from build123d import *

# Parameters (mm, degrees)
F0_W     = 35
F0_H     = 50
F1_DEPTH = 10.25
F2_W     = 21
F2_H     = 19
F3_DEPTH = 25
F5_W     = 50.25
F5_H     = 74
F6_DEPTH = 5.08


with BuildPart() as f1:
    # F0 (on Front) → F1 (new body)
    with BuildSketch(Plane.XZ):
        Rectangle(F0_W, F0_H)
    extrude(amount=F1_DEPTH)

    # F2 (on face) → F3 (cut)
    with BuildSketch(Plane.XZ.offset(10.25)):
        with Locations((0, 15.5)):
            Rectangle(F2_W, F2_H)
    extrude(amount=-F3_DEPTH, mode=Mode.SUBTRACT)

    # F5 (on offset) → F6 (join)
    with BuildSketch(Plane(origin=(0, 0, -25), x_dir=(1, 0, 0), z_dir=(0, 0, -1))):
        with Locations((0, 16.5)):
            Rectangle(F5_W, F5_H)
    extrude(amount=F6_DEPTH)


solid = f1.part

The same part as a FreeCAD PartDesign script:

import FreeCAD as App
import Part
import Sketcher

V = App.Vector
Q = App.Units.Quantity

doc = App.newDocument("Part")
params = doc.addObject("Spreadsheet::Sheet", "Params")
for row, (alias, value) in enumerate([
    ("sketch1_width", "35 mm"),
    ("sketch1_height", "50 mm"),
    ("pad1_length", "10.25 mm"),
    ("sketch2_width", "21 mm"),
    ("sketch2_height", "19 mm"),
    ("pocket1_length", "25 mm"),
    ("sketch3_height", "74 mm"),
    ("sketch3_width", "50.25 mm"),
    ("pad2_length", "5.08 mm"),
], start=1):
    params.set(f"A{row}", alias)
    params.set(f"B{row}", "=" + value)
    params.setAlias(f"B{row}", alias)

body = doc.addObject("PartDesign::Body", "Body")

# Sketch on XZ plane
sketch1 = body.newObject("Sketcher::SketchObject", "Sketch")
sketch1.AttachmentSupport = (doc.getObject("XZ_Plane"), [""])
sketch1.MapMode = "FlatFace"
sketch1.addGeometry(Part.LineSegment(V(-18, 25, 0), V(-18, -25, 0)), False)
sketch1.addGeometry(Part.LineSegment(V(-18, -25, 0), V(18, -25, 0)), False)
sketch1.addGeometry(Part.LineSegment(V(18, -25, 0), V(18, 25, 0)), False)
sketch1.addGeometry(Part.LineSegment(V(18, 25, 0), V(-18, 25, 0)), False)
sketch1.addConstraint(Sketcher.Constraint("Coincident", 0, 2, 1, 1))
sketch1.addConstraint(Sketcher.Constraint("Coincident", 1, 2, 2, 1))
sketch1.addConstraint(Sketcher.Constraint("Coincident", 2, 2, 3, 1))
sketch1.addConstraint(Sketcher.Constraint("Coincident", 3, 2, 0, 1))
sketch1.addConstraint(Sketcher.Constraint("Vertical", 0))
sketch1.addConstraint(Sketcher.Constraint("Horizontal", 1))
sketch1.addConstraint(Sketcher.Constraint("Vertical", 2))
sketch1.addConstraint(Sketcher.Constraint("Horizontal", 3))
sketch1.addConstraint(Sketcher.Constraint("Symmetric", 0, 2, 2, 2, -1, 1))
sketch1.addConstraint(Sketcher.Constraint("DistanceX", 1, 1, 1, 2, Q("35 mm")))
sketch1.addConstraint(Sketcher.Constraint("DistanceY", 0, 2, 0, 1, Q("50 mm")))
sketch1.setExpression("Constraints[9]", "Params.sketch1_width")
sketch1.setExpression("Constraints[10]", "Params.sketch1_height")
pad1 = body.newObject("PartDesign::Pad", "Pad")
pad1.Profile = sketch1
pad1.setExpression("Length", "Params.pad1_length")

# Sketch on XZ plane
sketch2 = body.newObject("Sketcher::SketchObject", "Sketch001")
sketch2.AttachmentSupport = (doc.getObject("XZ_Plane"), [""])
sketch2.MapMode = "FlatFace"
sketch2.AttachmentOffset = App.Placement(V(0, 0, 10.25), App.Rotation())
sketch2.addGeometry(Part.LineSegment(V(-10, 25, 0), V(-10, 6, 0)), False)
sketch2.addGeometry(Part.LineSegment(V(-10, 6, 0), V(10, 6, 0)), False)
sketch2.addGeometry(Part.LineSegment(V(10, 6, 0), V(10, 25, 0)), False)
sketch2.addGeometry(Part.LineSegment(V(10, 25, 0), V(-10, 25, 0)), False)
sketch2.addConstraint(Sketcher.Constraint("Coincident", 0, 2, 1, 1))
sketch2.addConstraint(Sketcher.Constraint("Coincident", 1, 2, 2, 1))
sketch2.addConstraint(Sketcher.Constraint("Coincident", 2, 2, 3, 1))
sketch2.addConstraint(Sketcher.Constraint("Coincident", 3, 2, 0, 1))
sketch2.addConstraint(Sketcher.Constraint("Vertical", 0))
sketch2.addConstraint(Sketcher.Constraint("Horizontal", 1))
sketch2.addConstraint(Sketcher.Constraint("Vertical", 2))
sketch2.addConstraint(Sketcher.Constraint("Horizontal", 3))
sketch2.addConstraint(Sketcher.Constraint("DistanceX", 1, 1, 1, 2, Q("21 mm")))
sketch2.addConstraint(Sketcher.Constraint("DistanceY", 0, 2, 0, 1, Q("19 mm")))
sketch2.addConstraint(Sketcher.Constraint("DistanceY", -1, 1, 0, 2, Q("6 mm")))
sketch2.addConstraint(Sketcher.Constraint("DistanceX", 0, 2, -1, 1, Q("10.5 mm")))
sketch2.setExpression("Constraints[8]", "Params.sketch2_width")
sketch2.setExpression("Constraints[9]", "Params.sketch2_height")
pocket1 = body.newObject("PartDesign::Pocket", "Pocket")
pocket1.Profile = sketch2
pocket1.setExpression("Length", "Params.pocket1_length")

# Sketch on XY plane
sketch3 = body.newObject("Sketcher::SketchObject", "Sketch002")
sketch3.AttachmentSupport = (doc.getObject("XY_Plane"), [""])
sketch3.MapMode = "FlatFace"
sketch3.AttachmentOffset = App.Placement(V(0, 0, -25), App.Rotation())
sketch3.addGeometry(Part.LineSegment(V(-25, -54, 0), V(-25, 20, 0)), False)
sketch3.addGeometry(Part.LineSegment(V(-25, 20, 0), V(25, 20, 0)), False)
sketch3.addGeometry(Part.LineSegment(V(25, 20, 0), V(25, -54, 0)), False)
sketch3.addGeometry(Part.LineSegment(V(25, -54, 0), V(-25, -54, 0)), False)
sketch3.addConstraint(Sketcher.Constraint("Coincident", 0, 2, 1, 1))
sketch3.addConstraint(Sketcher.Constraint("Coincident", 1, 2, 2, 1))
sketch3.addConstraint(Sketcher.Constraint("Coincident", 2, 2, 3, 1))
sketch3.addConstraint(Sketcher.Constraint("Coincident", 3, 2, 0, 1))
sketch3.addConstraint(Sketcher.Constraint("Vertical", 0))
sketch3.addConstraint(Sketcher.Constraint("Horizontal", 1))
sketch3.addConstraint(Sketcher.Constraint("Vertical", 2))
sketch3.addConstraint(Sketcher.Constraint("Horizontal", 3))
sketch3.addConstraint(Sketcher.Constraint("DistanceY", 0, 1, 0, 2, Q("74 mm")))
sketch3.addConstraint(Sketcher.Constraint("DistanceX", 1, 1, 1, 2, Q("50.25 mm")))
sketch3.addConstraint(Sketcher.Constraint("DistanceY", -1, 1, 0, 2, Q("20.5 mm")))
sketch3.addConstraint(Sketcher.Constraint("DistanceX", 0, 2, -1, 1, Q("25.125 mm")))
sketch3.setExpression("Constraints[8]", "Params.sketch3_height")
sketch3.setExpression("Constraints[9]", "Params.sketch3_width")
pad2 = body.newObject("PartDesign::Pad", "Pad001")
pad2.Profile = sketch3
pad2.setExpression("Length", "Params.pad2_length")
pad2.Reversed = True

doc.recompute()
